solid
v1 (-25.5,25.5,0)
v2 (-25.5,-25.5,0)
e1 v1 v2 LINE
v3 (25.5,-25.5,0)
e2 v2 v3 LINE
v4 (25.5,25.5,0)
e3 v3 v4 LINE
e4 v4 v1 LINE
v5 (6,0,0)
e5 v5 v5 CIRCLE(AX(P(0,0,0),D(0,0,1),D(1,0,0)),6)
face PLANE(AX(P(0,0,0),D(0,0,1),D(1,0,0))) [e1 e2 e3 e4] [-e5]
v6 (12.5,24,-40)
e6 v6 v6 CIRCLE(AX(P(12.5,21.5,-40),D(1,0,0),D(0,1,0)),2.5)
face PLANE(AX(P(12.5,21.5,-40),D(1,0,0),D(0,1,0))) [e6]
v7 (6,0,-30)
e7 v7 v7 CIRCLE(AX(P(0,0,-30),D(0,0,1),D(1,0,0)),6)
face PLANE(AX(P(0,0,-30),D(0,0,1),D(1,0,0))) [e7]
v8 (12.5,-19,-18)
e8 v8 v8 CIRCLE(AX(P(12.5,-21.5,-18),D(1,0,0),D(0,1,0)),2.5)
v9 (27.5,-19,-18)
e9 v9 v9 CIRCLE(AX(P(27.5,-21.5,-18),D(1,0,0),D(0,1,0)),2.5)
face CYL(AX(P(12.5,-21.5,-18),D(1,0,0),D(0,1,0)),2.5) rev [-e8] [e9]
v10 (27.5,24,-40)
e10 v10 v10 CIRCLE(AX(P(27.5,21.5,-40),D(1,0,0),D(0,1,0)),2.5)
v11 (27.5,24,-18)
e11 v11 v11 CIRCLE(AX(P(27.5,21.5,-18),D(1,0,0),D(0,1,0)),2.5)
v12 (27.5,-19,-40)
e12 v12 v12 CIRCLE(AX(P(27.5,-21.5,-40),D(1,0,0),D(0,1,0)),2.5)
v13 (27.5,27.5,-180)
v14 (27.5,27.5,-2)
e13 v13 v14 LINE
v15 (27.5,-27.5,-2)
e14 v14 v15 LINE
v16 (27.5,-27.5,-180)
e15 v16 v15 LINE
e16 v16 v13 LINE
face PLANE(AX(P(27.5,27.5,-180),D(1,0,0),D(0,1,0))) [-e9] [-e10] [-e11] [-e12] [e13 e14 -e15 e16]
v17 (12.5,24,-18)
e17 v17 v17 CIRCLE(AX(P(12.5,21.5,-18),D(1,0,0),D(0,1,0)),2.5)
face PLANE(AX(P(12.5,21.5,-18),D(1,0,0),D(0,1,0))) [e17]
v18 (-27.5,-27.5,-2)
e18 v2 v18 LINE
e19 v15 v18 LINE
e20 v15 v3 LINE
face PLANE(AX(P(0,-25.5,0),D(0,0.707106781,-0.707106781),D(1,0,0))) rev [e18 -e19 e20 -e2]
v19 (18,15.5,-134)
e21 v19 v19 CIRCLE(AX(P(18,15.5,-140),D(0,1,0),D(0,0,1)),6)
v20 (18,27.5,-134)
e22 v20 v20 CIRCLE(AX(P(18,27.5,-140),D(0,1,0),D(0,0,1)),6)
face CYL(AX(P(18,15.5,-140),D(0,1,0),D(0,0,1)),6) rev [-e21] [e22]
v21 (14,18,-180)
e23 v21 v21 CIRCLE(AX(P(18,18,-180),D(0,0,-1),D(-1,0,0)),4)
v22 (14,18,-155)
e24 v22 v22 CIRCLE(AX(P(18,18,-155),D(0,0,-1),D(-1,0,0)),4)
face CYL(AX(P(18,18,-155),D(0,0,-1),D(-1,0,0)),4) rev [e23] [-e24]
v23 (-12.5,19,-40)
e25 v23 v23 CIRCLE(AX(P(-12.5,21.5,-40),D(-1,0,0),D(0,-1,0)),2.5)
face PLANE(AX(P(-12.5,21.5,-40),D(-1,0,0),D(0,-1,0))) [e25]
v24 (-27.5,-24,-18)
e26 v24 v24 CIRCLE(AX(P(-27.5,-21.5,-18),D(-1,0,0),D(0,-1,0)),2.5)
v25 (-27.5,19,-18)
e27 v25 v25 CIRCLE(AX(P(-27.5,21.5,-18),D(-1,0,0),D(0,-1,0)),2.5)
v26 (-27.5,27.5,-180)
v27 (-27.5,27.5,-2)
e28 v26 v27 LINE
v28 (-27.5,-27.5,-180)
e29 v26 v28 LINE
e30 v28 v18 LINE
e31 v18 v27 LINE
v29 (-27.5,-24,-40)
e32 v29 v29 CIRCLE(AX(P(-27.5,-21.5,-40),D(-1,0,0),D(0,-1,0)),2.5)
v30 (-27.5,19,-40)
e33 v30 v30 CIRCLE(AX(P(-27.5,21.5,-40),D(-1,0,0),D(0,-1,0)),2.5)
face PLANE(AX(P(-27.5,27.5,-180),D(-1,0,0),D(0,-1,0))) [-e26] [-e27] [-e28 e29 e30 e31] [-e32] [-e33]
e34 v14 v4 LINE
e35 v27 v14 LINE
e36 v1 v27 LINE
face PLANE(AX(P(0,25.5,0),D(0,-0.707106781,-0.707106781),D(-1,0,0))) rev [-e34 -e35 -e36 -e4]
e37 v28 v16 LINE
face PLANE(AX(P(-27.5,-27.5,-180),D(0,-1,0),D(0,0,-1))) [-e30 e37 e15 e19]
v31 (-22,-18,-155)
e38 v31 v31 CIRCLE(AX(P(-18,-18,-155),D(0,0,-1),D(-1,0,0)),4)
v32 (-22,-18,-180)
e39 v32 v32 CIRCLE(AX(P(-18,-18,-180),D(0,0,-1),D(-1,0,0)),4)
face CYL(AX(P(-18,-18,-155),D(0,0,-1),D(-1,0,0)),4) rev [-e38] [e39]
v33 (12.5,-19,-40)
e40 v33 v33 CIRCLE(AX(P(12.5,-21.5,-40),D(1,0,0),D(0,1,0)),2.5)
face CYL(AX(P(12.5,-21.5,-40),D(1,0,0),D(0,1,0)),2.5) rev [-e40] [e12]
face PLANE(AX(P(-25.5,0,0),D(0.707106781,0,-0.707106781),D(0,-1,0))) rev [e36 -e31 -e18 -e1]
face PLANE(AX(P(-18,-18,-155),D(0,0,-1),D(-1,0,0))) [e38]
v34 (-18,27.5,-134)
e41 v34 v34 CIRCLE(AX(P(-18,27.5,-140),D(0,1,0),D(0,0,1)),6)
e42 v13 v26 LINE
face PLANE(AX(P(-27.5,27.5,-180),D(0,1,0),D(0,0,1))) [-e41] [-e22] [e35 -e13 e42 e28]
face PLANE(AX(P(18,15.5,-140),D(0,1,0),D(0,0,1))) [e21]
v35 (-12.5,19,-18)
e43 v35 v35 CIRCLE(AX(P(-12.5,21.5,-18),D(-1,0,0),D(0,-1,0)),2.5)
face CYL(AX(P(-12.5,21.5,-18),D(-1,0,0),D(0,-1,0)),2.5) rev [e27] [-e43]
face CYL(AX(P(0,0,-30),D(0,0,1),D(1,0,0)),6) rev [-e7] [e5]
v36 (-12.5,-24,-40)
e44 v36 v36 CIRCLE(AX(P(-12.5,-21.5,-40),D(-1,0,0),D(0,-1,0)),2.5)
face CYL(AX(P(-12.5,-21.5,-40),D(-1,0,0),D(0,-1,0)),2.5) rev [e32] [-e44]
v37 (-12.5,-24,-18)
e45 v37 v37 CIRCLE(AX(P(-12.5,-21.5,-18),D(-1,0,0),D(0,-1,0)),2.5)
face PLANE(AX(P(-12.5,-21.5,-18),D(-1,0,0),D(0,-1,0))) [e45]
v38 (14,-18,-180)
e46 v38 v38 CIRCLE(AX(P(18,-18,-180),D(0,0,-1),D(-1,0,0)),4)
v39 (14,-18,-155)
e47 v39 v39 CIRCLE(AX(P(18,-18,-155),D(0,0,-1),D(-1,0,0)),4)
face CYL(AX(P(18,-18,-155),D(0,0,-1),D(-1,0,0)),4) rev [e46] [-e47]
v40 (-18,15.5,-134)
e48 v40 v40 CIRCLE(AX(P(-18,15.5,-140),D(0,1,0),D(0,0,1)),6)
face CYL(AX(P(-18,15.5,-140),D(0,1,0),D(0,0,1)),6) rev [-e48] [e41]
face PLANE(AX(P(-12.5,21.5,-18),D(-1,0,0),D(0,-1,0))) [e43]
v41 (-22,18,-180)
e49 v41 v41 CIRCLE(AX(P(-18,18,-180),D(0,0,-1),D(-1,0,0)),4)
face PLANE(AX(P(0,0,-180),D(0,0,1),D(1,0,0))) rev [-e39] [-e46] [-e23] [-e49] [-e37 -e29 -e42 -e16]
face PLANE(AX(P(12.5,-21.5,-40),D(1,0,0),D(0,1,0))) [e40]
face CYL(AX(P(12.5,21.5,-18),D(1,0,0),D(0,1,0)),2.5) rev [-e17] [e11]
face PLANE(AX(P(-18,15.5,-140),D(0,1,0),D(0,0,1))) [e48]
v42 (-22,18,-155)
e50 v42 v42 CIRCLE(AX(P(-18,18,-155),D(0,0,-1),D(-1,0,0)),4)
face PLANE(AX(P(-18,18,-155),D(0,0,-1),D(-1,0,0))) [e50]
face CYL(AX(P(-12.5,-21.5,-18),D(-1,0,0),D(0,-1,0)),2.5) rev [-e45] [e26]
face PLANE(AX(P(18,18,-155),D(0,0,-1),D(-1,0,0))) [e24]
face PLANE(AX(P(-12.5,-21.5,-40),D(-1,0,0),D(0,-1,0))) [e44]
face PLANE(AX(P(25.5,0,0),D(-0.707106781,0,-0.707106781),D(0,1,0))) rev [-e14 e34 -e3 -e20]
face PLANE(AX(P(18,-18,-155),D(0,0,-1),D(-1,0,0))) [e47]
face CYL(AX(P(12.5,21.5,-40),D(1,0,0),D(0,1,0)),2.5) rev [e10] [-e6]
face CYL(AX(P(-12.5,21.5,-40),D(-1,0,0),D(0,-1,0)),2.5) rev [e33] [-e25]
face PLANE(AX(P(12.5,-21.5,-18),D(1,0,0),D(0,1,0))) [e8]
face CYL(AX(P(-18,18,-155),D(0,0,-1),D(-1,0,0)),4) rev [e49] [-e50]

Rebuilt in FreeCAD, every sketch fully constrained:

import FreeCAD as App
import Part
import Sketcher

V = App.Vector


def edges_at(feature, points):
    """Names of the edges that pass closest to the given points."""
    edges = feature.Shape.Edges
    near = lambda p: min(range(len(edges)), key=lambda i: edges[i].distToShape(Part.Vertex(*p))[0])
    return sorted({f"Edge{near(p) + 1}" for p in points})

doc = App.newDocument("Part")
body = doc.addObject("PartDesign::Body", "Body")

# Sketch on XY plane
sketch1 = body.newObject("Sketcher::SketchObject", "Sketch")
sketch1.AttachmentSupport = (doc.getObject("XY_Plane"), [""])
sketch1.MapMode = "FlatFace"
sketch1.addGeometry([
    Part.LineSegment(V(-28, 28, 0), V(-28, -28, 0)),
    Part.LineSegment(V(-28, -28, 0), V(28, -28, 0)),
    Part.LineSegment(V(28, -28, 0), V(28, 28, 0)),
    Part.LineSegment(V(28, 28, 0), V(-28, 28, 0)),
], False)
sketch1.addConstraint([
    Sketcher.Constraint("Coincident", 0, 2, 1, 1),
    Sketcher.Constraint("Coincident", 1, 2, 2, 1),
    Sketcher.Constraint("Coincident", 2, 2, 3, 1),
    Sketcher.Constraint("Coincident", 3, 2, 0, 1),
    Sketcher.Constraint("Vertical", 0),
    Sketcher.Constraint("Horizontal", 1),
    Sketcher.Constraint("Vertical", 2),
    Sketcher.Constraint("Horizontal", 3),
    Sketcher.Constraint("Symmetric", 0, 2, 2, 2, -1, 1),
    Sketcher.Constraint("Equal", 3, 0),
    Sketcher.Constraint("DistanceX", 1, 1, 1, 2, 55.0),
])
pad1 = body.newObject("PartDesign::Pad", "Pad")
pad1.Profile = sketch1
pad1.Length = 180
pad1.Reversed = True

# Sketch on XY plane
sketch2 = body.newObject("Sketcher::SketchObject", "Sketch001")
sketch2.AttachmentSupport = (doc.getObject("XY_Plane"), [""])
sketch2.MapMode = "FlatFace"
sketch2.addGeometry(Part.Circle(V(0, 0, 0), V(0, 0, 1), 6), False)
sketch2.addConstraint([
    Sketcher.Constraint("Coincident", 0, 3, -1, 1),
    Sketcher.Constraint("Diameter", 0, 12.0),
])
pocket1 = body.newObject("PartDesign::Pocket", "Pocket")
pocket1.Profile = sketch2
pocket1.Length = 30

# Sketch on XY plane
sketch3 = body.newObject("Sketcher::SketchObject", "Sketch002")
sketch3.AttachmentSupport = (doc.getObject("XY_Plane"), [""])
sketch3.MapMode = "FlatFace"
sketch3.AttachmentOffset = App.Placement(V(0, 0, -180), App.Rotation())
sketch3.addGeometry([
    Part.Circle(V(-18, 18, 0), V(0, 0, 1), 4),
    Part.Circle(V(18, 18, 0), V(0, 0, 1), 4),
    Part.Circle(V(18, -18, 0), V(0, 0, 1), 4),
    Part.Circle(V(-18, -18, 0), V(0, 0, 1), 4),
], False)
sketch3.addConstraint([
    Sketcher.Constraint("Equal", 0, 1),
    Sketcher.Constraint("Equal", 1, 2),
    Sketcher.Constraint("Equal", 2, 3),
    Sketcher.Constraint("Symmetric", 0, 3, 2, 3, -1, 1),
    Sketcher.Constraint("Symmetric", 1, 3, 3, 3, -1, 1),
    Sketcher.Constraint("Symmetric", 0, 3, 1, 3, -2),
    Sketcher.Constraint("Diameter", 0, 8.0),
    Sketcher.Constraint("DistanceX", 0, 3, -1, 1, 18.0),
    Sketcher.Constraint("DistanceY", -1, 1, 0, 3, 18.0),
])
pocket2 = body.newObject("PartDesign::Pocket", "Pocket001")
pocket2.Profile = sketch3
pocket2.Length = 25
pocket2.Reversed = True

# Sketch on YZ plane
sketch4 = body.newObject("Sketcher::SketchObject", "Sketch003")
sketch4.AttachmentSupport = (doc.getObject("YZ_Plane"), [""])
sketch4.MapMode = "FlatFace"
sketch4.AttachmentOffset = App.Placement(V(0, 0, 27.5), App.Rotation())
sketch4.addGeometry([
    Part.Circle(V(21.5, -18, 0), V(0, 0, 1), 2.5),
    Part.Circle(V(21.5, -40, 0), V(0, 0, 1), 2.5),
    Part.Circle(V(-21.5, -40, 0), V(0, 0, 1), 2.5),
    Part.Circle(V(-21.5, -18, 0), V(0, 0, 1), 2.5),
], False)
sketch4.addConstraint([
    Sketcher.Constraint("Equal", 0, 1),
    Sketcher.Constraint("Equal", 1, 2),
    Sketcher.Constraint("Equal", 2, 3),
    Sketcher.Constraint("Symmetric", 1, 3, 2, 3, -2),
    Sketcher.Constraint("Symmetric", 0, 3, 3, 3, -2),
    Sketcher.Constraint("Vertical", 0, 3, 1, 3),
    Sketcher.Constraint("Diameter", 0, 5.0),
    Sketcher.Constraint("DistanceY", 0, 3, -1, 1, 18.0),
    Sketcher.Constraint("DistanceY", 1, 3, -1, 1, 40.0),
    Sketcher.Constraint("DistanceX", 2, 3, 1, 3, 43.0),
])
pocket3 = body.newObject("PartDesign::Pocket", "Pocket002")
pocket3.Profile = sketch4
pocket3.Length = 15

# Sketch on YZ plane
sketch5 = body.newObject("Sketcher::SketchObject", "Sketch004")
sketch5.AttachmentSupport = (doc.getObject("YZ_Plane"), [""])
sketch5.MapMode = "FlatFace"
sketch5.AttachmentOffset = App.Placement(V(0, 0, -12.5), App.Rotation())
sketch5.addGeometry([
    Part.Circle(V(21.5, -18, 0), V(0, 0, 1), 2.5),
    Part.Circle(V(21.5, -40, 0), V(0, 0, 1), 2.5),
    Part.Circle(V(-21.5, -40, 0), V(0, 0, 1), 2.5),
    Part.Circle(V(-21.5, -18, 0), V(0, 0, 1), 2.5),
], False)
sketch5.addConstraint([
    Sketcher.Constraint("Equal", 0, 1),
    Sketcher.Constraint("Equal", 1, 2),
    Sketcher.Constraint("Equal", 2, 3),
    Sketcher.Constraint("Symmetric", 1, 3, 2, 3, -2),
    Sketcher.Constraint("Symmetric", 0, 3, 3, 3, -2),
    Sketcher.Constraint("Vertical", 0, 3, 1, 3),
    Sketcher.Constraint("Diameter", 0, 5.0),
    Sketcher.Constraint("DistanceY", 0, 3, -1, 1, 18.0),
    Sketcher.Constraint("DistanceY", 1, 3, -1, 1, 40.0),
    Sketcher.Constraint("DistanceX", 2, 3, 1, 3, 43.0),
])
pocket4 = body.newObject("PartDesign::Pocket", "Pocket003")
pocket4.Profile = sketch5
pocket4.Length = 15

# Sketch on XZ plane
sketch6 = body.newObject("Sketcher::SketchObject", "Sketch005")
sketch6.AttachmentSupport = (doc.getObject("XZ_Plane"), [""])
sketch6.MapMode = "FlatFace"
sketch6.AttachmentOffset = App.Placement(V(0, 0, -27.5), App.Rotation())
sketch6.addGeometry([
    Part.Circle(V(-18, -140, 0), V(0, 0, 1), 6),
    Part.Circle(V(18, -140, 0), V(0, 0, 1), 6),
], False)
sketch6.addConstraint([
    Sketcher.Constraint("Equal", 0, 1),
    Sketcher.Constraint("Symmetric", 0, 3, 1, 3, -2),
    Sketcher.Constraint("Diameter", 0, 12.0),
    Sketcher.Constraint("DistanceX", 0, 3, -1, 1, 18.0),
    Sketcher.Constraint("DistanceY", 0, 3, -1, 1, 140.0),
])
pocket5 = body.newObject("PartDesign::Pocket", "Pocket004")
pocket5.Profile = sketch6
pocket5.Length = 12
pocket5.Reversed = True
doc.recompute()

chamfer = body.newObject("PartDesign::Chamfer", "Chamfer")
chamfer.Base = (pocket5, edges_at(pocket5, [
    (0, -27.5, 0),
    (-27.5, 0, 0),
    (0, 27.5, 0),
    (27.5, 0, 0),
]))
chamfer.Size = 2

doc.recompute()
